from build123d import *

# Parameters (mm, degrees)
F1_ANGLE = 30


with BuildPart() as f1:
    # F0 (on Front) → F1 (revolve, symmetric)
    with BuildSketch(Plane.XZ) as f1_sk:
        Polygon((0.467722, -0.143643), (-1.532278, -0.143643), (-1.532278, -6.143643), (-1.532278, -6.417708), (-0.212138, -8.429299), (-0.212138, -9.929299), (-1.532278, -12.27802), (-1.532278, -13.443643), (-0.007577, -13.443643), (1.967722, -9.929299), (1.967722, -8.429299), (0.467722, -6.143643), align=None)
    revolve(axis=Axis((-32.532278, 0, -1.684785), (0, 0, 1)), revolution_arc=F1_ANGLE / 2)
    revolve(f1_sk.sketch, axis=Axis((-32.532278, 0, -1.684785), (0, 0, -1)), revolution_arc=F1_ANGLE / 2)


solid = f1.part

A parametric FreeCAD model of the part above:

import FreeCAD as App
import Part
import Sketcher

V = App.Vector
Q = App.Units.Quantity

doc = App.newDocument("Part")
body = doc.addObject("PartDesign::Body", "Body")

sketch1 = doc.addObject("Sketcher::SketchObject", "Sketch")
body.addObject(sketch1)
sketch1.AttachmentSupport = (doc.XZ_Plane, [""])
sketch1.MapMode = "FlatFace"
sketch1.addGeometry([
    Part.LineSegment(V(0.5, -0.1, 0), V(-1.5, -0.1, 0)),
    Part.LineSegment(V(-1.5, -0.1, 0), V(-1.5, -6.4, 0)),
    Part.LineSegment(V(-1.5, -6.4, 0), V(-0.2, -8.4, 0)),
    Part.LineSegment(V(-0.2, -8.4, 0), V(-0.2, -9.9, 0)),
    Part.LineSegment(V(-0.2, -9.9, 0), V(-1.5, -12.3, 0)),
    Part.LineSegment(V(-1.5, -12.3, 0), V(-1.5, -13.4, 0)),
    Part.LineSegment(V(-1.5, -13.4, 0), V(0, -13.4, 0)),
    Part.LineSegment(V(0, -13.4, 0), V(2, -9.9, 0)),
    Part.LineSegment(V(2, -9.9, 0), V(2, -8.4, 0)),
    Part.LineSegment(V(2, -8.4, 0), V(0.5, -6.1, 0)),
    Part.LineSegment(V(0.5, -6.1, 0), V(0.5, -0.1, 0)),
], False)
sketch1.addGeometry(Part.LineSegment(V(-32.5, -13.4, 0), V(-32.5, -0.1, 0)), True)
sketch1.addConstraint([
    Sketcher.Constraint("Coincident", 0, 2, 1, 1),
    Sketcher.Constraint("Coincident", 1, 2, 2, 1),
    Sketcher.Constraint("Coincident", 2, 2, 3, 1),
    Sketcher.Constraint("Coincident", 3, 2, 4, 1),
    Sketcher.Constraint("Coincident", 4, 2, 5, 1),
    Sketcher.Constraint("Coincident", 5, 2, 6, 1),
    Sketcher.Constraint("Coincident", 6, 2, 7, 1),
    Sketcher.Constraint("Coincident", 7, 2, 8, 1),
    Sketcher.Constraint("Coincident", 8, 2, 9, 1),
    Sketcher.Constraint("Coincident", 9, 2, 10, 1),
    Sketcher.Constraint("Coincident", 10, 2, 0, 1),
    Sketcher.Constraint("Horizontal", 0),
    Sketcher.Constraint("Vertical", 1),
    Sketcher.Constraint("Vertical", 3),
    Sketcher.Constraint("Vertical", 5),
    Sketcher.Constraint("Horizontal", 6),
    Sketcher.Constraint("Vertical", 8),
    Sketcher.Constraint("Vertical", 10),
    Sketcher.Constraint("Vertical", 11),
    Sketcher.Constraint("Parallel", 4, 7),
    Sketcher.Constraint("Parallel", 2, 9),
    Sketcher.Constraint("Horizontal", 3, 2, 7, 2),
    Sketcher.Constraint("Horizontal", 2, 2, 8, 2),
    Sketcher.Constraint("Horizontal", 6, 2, 11, 1),
    Sketcher.Constraint("Horizontal", 10, 2, 11, 2),
    Sketcher.Constraint("Vertical", 1, 2, 4, 2),
    Sketcher.Constraint("DistanceX", 0, 2, 0, 1, Q("2 mm")),
    Sketcher.Constraint("DistanceY", 10, 1, 10, 2, Q("6 mm")),
    Sketcher.Constraint("DistanceY", 3, 2, 3, 1, Q("1.5 mm")),
    Sketcher.Constraint("DistanceY", 11, 1, 11, 2, Q("13.3 mm")),
    Sketcher.Constraint("DistanceX", 11, 1, 5, 2, Q("31 mm")),
    Sketcher.Constraint("DistanceX", 4, 2, 7, 2, Q("3.5 mm")),
    Sketcher.Constraint("DistanceX", 6, 1, 6, 2, Q("1.524701 mm")),
    Sketcher.Constraint("Distance", 4, Q("2.694301 mm")),
    Sketcher.Constraint("DistanceY", 2, 2, -1, 1, Q("8.429299 mm")),
    Sketcher.Constraint("Distance", 2, Q("2.40609 mm")),
    Sketcher.Constraint("DistanceX", 0, 2, -1, 1, Q("1.532278 mm")),
])
revolution = doc.addObject("PartDesign::Revolution", "Revolution")
body.addObject(revolution)
revolution.Profile = sketch1
revolution.ReferenceAxis = (sketch1, ["Axis0"])
revolution.Angle = 15

sketch2 = doc.addObject("Sketcher::SketchObject", "Sketch001")
body.addObject(sketch2)
sketch2.AttachmentSupport = (doc.XZ_Plane, [""])
sketch2.MapMode = "FlatFace"
sketch2.addGeometry([
    Part.LineSegment(V(0.5, -0.1, 0), V(-1.5, -0.1, 0)),
    Part.LineSegment(V(-1.5, -0.1, 0), V(-1.5, -6.4, 0)),
    Part.LineSegment(V(-1.5, -6.4, 0), V(-0.2, -8.4, 0)),
    Part.LineSegment(V(-0.2, -8.4, 0), V(-0.2, -9.9, 0)),
    Part.LineSegment(V(-0.2, -9.9, 0), V(-1.5, -12.3, 0)),
    Part.LineSegment(V(-1.5, -12.3, 0), V(-1.5, -13.4, 0)),
    Part.LineSegment(V(-1.5, -13.4, 0), V(0, -13.4, 0)),
    Part.LineSegment(V(0, -13.4, 0), V(2, -9.9, 0)),
    Part.LineSegment(V(2, -9.9, 0), V(2, -8.4, 0)),
    Part.LineSegment(V(2, -8.4, 0), V(0.5, -6.1, 0)),
    Part.LineSegment(V(0.5, -6.1, 0), V(0.5, -0.1, 0)),
], False)
sketch2.addGeometry(Part.LineSegment(V(-32.5, -0.1, 0), V(-32.5, -13.4, 0)), True)
sketch2.addConstraint([
    Sketcher.Constraint("Coincident", 0, 2, 1, 1),
    Sketcher.Constraint("Coincident", 1, 2, 2, 1),
    Sketcher.Constraint("Coincident", 2, 2, 3, 1),
    Sketcher.Constraint("Coincident", 3, 2, 4, 1),
    Sketcher.Constraint("Coincident", 4, 2, 5, 1),
    Sketcher.Constraint("Coincident", 5, 2, 6, 1),
    Sketcher.Constraint("Coincident", 6, 2, 7, 1),
    Sketcher.Constraint("Coincident", 7, 2, 8, 1),
    Sketcher.Constraint("Coincident", 8, 2, 9, 1),
    Sketcher.Constraint("Coincident", 9, 2, 10, 1),
    Sketcher.Constraint("Coincident", 10, 2, 0, 1),
    Sketcher.Constraint("Horizontal", 0),
    Sketcher.Constraint("Vertical", 1),
    Sketcher.Constraint("Vertical", 3),
    Sketcher.Constraint("Vertical", 5),
    Sketcher.Constraint("Horizontal", 6),
    Sketcher.Constraint("Vertical", 8),
    Sketcher.Constraint("Vertical", 10),
    Sketcher.Constraint("Vertical", 11),
    Sketcher.Constraint("Parallel", 4, 7),
    Sketcher.Constraint("Parallel", 2, 9),
    Sketcher.Constraint("Horizontal", 3, 2, 7, 2),
    Sketcher.Constraint("Horizontal", 2, 2, 8, 2),
    Sketcher.Constraint("Horizontal", 10, 2, 11, 1),
    Sketcher.Constraint("Horizontal", 6, 2, 11, 2),
    Sketcher.Constraint("Vertical", 1, 2, 4, 2),
    Sketcher.Constraint("DistanceX", 0, 2, 0, 1, Q("2 mm")),
    Sketcher.Constraint("DistanceY", 10, 1, 10, 2, Q("6 mm")),
    Sketcher.Constraint("DistanceY", 3, 2, 3, 1, Q("1.5 mm")),
    Sketcher.Constraint("DistanceY", 11, 2, 11, 1, Q("13.3 mm")),
    Sketcher.Constraint("DistanceX", 11, 1, 0, 2, Q("31 mm")),
    Sketcher.Constraint("DistanceX", 4, 2, 7, 2, Q("3.5 mm")),
    Sketcher.Constraint("DistanceX", 6, 1, 6, 2, Q("1.524701 mm")),
    Sketcher.Constraint("Distance", 4, Q("2.694301 mm")),
    Sketcher.Constraint("DistanceY", 2, 2, -1, 1, Q("8.429299 mm")),
    Sketcher.Constraint("Distance", 2, Q("2.40609 mm")),
    Sketcher.Constraint("DistanceX", 0, 2, -1, 1, Q("1.532278 mm")),
])
revolution2 = doc.addObject("PartDesign::Revolution", "Revolution001")
body.addObject(revolution2)
revolution2.Profile = sketch2
revolution2.ReferenceAxis = (sketch2, ["Axis0"])
revolution2.Angle = 15

doc.recompute()
